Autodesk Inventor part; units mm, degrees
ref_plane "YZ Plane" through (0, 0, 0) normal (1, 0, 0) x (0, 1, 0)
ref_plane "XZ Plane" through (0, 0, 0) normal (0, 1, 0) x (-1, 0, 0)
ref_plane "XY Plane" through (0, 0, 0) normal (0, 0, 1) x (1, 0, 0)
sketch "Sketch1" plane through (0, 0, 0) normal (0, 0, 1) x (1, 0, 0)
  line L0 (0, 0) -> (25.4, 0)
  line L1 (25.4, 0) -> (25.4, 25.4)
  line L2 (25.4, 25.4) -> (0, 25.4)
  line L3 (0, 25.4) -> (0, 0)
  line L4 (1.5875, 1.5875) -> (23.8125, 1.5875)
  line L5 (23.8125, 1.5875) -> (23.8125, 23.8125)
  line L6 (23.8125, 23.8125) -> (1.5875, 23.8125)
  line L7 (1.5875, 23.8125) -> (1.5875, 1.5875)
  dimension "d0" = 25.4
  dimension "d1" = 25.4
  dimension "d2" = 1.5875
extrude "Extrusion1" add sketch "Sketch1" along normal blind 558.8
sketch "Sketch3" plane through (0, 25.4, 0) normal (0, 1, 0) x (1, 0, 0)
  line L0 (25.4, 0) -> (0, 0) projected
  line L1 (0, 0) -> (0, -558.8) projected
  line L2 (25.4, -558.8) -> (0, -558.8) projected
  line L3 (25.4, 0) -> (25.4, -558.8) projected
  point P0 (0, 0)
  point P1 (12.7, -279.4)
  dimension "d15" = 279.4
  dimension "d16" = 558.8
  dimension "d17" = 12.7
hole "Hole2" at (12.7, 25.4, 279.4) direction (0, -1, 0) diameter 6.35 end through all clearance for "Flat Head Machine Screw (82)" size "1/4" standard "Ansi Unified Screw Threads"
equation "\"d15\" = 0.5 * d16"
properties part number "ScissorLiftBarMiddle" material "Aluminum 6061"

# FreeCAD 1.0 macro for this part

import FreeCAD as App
import Part
import Sketcher
Q = App.Units.Quantity


def add_polygon(sketch, points):
    """Adds a closed chain of lines whose ends are joined by coincident constraints."""
    first, n = sketch.GeometryCount, len(points)
    for a, b in zip(points, points[1:] + points[:1]):
        sketch.addGeometry(Part.LineSegment(App.Vector(*a, 0), App.Vector(*b, 0)), False)
    for i in range(n):
        sketch.addConstraint(Sketcher.Constraint("Coincident", first + i, 2, first + (i + 1) % n, 1))

doc = App.newDocument("Part")
body = doc.addObject("PartDesign::Body", "Body")

sketch1 = body.newObject("Sketcher::SketchObject", "Sketch")
sketch1.AttachmentSupport = (doc.getObject("XY_Plane"), [""])
sketch1.MapMode = "FlatFace"
add_polygon(sketch1, [(0, 25), (0, 0), (25, 0), (25, 25)])
add_polygon(sketch1, [(24, 2), (2, 2), (2, 24), (24, 24)])
sketch1.addConstraint([
    Sketcher.Constraint("Vertical", 0),
    Sketcher.Constraint("Horizontal", 1),
    Sketcher.Constraint("Vertical", 2),
    Sketcher.Constraint("Horizontal", 3),
    Sketcher.Constraint("Horizontal", 4),
    Sketcher.Constraint("Vertical", 5),
    Sketcher.Constraint("Horizontal", 6),
    Sketcher.Constraint("Vertical", 7),
    Sketcher.Constraint("Coincident", 0, 2, -1, 1),
    Sketcher.Constraint("Equal", 3, 0),
    Sketcher.Constraint("Equal", 6, 5),
    Sketcher.Constraint("DistanceX", 1, 1, 1, 2, Q("1 in")),
    Sketcher.Constraint("DistanceX", -1, 1, 4, 2, Q("0.0625 in")),
    Sketcher.Constraint("DistanceY", -1, 1, 4, 2, Q("0.0625 in")),
    Sketcher.Constraint("DistanceY", 5, 2, 3, 2, Q("0.0625 in")),
])
pad1 = body.newObject("PartDesign::Pad", "Pad")
pad1.Profile = sketch1
pad1.Length = Q("22 in")

sketch2 = body.newObject("Sketcher::SketchObject", "Sketch001")
sketch2.AttachmentSupport = (doc.getObject("XZ_Plane"), [""])
sketch2.MapMode = "FlatFace"
sketch2.AttachmentOffset = App.Placement(App.Vector(0, 0, -1 * 25.4), App.Rotation())
sketch2.addGeometry(Part.Circle(App.Vector(12.7, 279.4, 0), App.Vector(0, 0, 1), 3.2), False)
sketch2.addConstraint([
    Sketcher.Constraint("Diameter", 0, Q("0.25 in")),
    Sketcher.Constraint("DistanceY", -1, 1, 0, 3, Q("11 in")),
    Sketcher.Constraint("DistanceX", -1, 1, 0, 3, Q("0.5 in")),
])
doc.recompute()
hole = body.newObject("PartDesign::Hole", "Hole")
hole.Profile = sketch2
hole.ThreadType = "None"
hole.Diameter = Q("0.25 in")
hole.DepthType = "ThroughAll"
hole.Reversed = True

doc.recompute()
